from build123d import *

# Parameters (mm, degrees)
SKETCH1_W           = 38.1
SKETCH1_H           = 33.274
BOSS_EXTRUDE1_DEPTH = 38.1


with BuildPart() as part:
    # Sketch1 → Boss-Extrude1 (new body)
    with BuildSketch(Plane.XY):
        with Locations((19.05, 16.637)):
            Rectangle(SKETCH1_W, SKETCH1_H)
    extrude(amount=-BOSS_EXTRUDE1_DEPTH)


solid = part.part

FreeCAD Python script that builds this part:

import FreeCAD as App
import Part
import Sketcher

V = App.Vector
Q = App.Units.Quantity

doc = App.newDocument("Part")
params = doc.addObject("Spreadsheet::Sheet", "Params")
for row, (alias, value) in enumerate([
    ("sketch1_width", "1.5 in"),
    ("sketch1_height", "1.31 in"),
    ("pad1_length", "1.5 in"),
], start=1):
    params.set(f"A{row}", alias)
    params.set(f"B{row}", "=" + value)
    params.setAlias(f"B{row}", alias)

body = doc.addObject("PartDesign::Body", "Body")

# Sketch on XY plane
sketch1 = body.newObject("Sketcher::SketchObject", "Sketch")
sketch1.AttachmentSupport = (doc.getObject("XY_Plane"), [""])
sketch1.MapMode = "FlatFace"
sketch1.addGeometry(Part.LineSegment(V(0, 33, 0), V(0, 0, 0)), False)
sketch1.addGeometry(Part.LineSegment(V(0, 0, 0), V(38, 0, 0)), False)
sketch1.addGeometry(Part.LineSegment(V(38, 0, 0), V(38, 33, 0)), False)
sketch1.addGeometry(Part.LineSegment(V(38, 33, 0), V(0, 33, 0)), False)
sketch1.addConstraint(Sketcher.Constraint("Coincident", 0, 2, 1, 1))
sketch1.addConstraint(Sketcher.Constraint("Coincident", 1, 2, 2, 1))
sketch1.addConstraint(Sketcher.Constraint("Coincident", 2, 2, 3, 1))
sketch1.addConstraint(Sketcher.Constraint("Coincident", 3, 2, 0, 1))
sketch1.addConstraint(Sketcher.Constraint("Vertical", 0))
sketch1.addConstraint(Sketcher.Constraint("Horizontal", 1))
sketch1.addConstraint(Sketcher.Constraint("Vertical", 2))
sketch1.addConstraint(Sketcher.Constraint("Horizontal", 3))
sketch1.addConstraint(Sketcher.Constraint("Coincident", 0, 2, -1, 1))
sketch1.addConstraint(Sketcher.Constraint("DistanceX", 1, 1, 1, 2, Q("1.5 in")))
sketch1.addConstraint(Sketcher.Constraint("DistanceY", 0, 2, 0, 1, Q("1.31 in")))
sketch1.setExpression("Constraints[9]", "Params.sketch1_width")
sketch1.setExpression("Constraints[10]", "Params.sketch1_height")
pad1 = body.newObject("PartDesign::Pad", "Pad")
pad1.Profile = sketch1
pad1.setExpression("Length", "Params.pad1_length")
pad1.Reversed = True

doc.recompute()
